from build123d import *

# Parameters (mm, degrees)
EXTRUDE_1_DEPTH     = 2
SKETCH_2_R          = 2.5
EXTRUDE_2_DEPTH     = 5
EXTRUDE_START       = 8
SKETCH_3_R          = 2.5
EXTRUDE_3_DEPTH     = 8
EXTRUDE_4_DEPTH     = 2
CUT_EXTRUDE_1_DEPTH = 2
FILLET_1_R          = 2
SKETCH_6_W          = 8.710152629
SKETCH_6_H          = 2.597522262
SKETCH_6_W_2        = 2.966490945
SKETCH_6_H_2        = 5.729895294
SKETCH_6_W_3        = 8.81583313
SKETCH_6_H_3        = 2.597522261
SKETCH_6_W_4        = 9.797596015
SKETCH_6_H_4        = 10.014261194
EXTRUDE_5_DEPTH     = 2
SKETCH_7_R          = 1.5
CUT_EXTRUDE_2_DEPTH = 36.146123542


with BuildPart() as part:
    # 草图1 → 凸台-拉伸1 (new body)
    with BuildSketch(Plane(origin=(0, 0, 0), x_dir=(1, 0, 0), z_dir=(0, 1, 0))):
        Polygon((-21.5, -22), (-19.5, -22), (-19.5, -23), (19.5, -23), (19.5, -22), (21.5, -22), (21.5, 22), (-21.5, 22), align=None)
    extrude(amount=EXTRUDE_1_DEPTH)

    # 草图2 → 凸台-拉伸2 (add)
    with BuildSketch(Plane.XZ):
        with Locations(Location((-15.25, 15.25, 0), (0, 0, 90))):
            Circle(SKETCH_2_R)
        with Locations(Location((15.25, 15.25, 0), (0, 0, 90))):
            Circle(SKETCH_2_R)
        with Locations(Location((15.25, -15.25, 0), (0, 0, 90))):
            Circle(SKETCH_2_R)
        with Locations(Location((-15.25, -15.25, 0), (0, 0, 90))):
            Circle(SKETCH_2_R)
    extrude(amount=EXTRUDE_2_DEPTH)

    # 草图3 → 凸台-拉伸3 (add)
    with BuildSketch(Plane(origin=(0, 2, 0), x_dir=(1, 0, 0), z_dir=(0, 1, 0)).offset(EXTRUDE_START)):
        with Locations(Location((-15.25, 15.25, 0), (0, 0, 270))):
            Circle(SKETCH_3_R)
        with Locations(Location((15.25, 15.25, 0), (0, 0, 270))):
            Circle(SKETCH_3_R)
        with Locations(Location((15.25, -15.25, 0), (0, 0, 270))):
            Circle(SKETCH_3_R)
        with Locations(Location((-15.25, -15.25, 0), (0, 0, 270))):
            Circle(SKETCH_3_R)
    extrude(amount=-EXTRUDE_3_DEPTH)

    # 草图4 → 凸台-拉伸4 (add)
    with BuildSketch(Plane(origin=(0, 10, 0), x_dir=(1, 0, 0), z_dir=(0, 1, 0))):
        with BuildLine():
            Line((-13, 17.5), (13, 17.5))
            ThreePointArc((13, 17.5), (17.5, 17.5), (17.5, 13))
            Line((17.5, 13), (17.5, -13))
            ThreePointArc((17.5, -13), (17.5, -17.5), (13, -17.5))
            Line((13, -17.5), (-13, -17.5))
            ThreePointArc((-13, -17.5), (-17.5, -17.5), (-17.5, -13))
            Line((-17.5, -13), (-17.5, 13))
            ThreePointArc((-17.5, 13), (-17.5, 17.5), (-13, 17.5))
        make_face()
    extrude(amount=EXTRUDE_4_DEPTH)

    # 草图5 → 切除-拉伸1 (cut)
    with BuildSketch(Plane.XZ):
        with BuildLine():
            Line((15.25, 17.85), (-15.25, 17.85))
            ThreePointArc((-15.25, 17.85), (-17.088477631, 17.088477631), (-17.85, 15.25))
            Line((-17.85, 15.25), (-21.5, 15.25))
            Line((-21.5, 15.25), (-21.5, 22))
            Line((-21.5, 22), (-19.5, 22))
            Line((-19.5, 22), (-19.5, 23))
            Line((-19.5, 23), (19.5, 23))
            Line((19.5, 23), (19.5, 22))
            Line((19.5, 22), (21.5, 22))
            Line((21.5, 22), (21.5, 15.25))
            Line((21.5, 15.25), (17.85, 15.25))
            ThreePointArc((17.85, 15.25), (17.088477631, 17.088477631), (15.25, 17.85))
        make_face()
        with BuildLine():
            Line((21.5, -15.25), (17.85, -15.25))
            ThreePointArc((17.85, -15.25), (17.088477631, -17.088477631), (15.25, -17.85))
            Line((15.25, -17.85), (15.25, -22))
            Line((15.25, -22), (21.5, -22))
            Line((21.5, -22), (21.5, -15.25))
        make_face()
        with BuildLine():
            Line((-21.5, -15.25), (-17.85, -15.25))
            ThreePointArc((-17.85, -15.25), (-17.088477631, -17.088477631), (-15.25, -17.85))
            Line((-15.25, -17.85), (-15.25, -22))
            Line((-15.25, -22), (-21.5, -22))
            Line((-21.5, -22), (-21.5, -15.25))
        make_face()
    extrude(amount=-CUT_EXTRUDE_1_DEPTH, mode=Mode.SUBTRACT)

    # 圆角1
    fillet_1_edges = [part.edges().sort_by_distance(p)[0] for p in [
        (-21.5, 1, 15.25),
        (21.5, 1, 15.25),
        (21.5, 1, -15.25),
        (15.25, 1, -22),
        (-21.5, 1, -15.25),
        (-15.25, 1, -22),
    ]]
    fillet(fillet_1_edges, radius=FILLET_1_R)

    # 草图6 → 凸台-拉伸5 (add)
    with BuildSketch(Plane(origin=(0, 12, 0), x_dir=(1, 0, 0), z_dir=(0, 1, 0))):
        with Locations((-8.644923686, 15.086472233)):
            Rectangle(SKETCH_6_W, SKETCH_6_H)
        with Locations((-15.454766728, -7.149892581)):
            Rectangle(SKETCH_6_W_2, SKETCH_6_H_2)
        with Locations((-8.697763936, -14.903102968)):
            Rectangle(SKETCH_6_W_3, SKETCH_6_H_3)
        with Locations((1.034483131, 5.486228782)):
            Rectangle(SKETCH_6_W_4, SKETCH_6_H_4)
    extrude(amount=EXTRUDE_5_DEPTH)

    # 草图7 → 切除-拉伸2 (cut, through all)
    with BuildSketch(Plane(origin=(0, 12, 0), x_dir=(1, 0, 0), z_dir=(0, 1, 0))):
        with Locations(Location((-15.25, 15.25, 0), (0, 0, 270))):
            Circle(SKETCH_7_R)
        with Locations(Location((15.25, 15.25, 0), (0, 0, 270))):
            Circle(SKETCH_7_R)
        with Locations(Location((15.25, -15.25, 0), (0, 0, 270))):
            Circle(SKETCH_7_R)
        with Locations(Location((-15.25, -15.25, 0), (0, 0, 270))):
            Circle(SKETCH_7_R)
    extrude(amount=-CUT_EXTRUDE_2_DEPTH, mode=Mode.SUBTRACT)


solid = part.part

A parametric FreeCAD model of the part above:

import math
import FreeCAD as App
import Part
import Sketcher

V = App.Vector


def edges_at(feature, points):
    """Names of the edges that pass closest to the given points."""
    edges = feature.Shape.Edges
    near = lambda p: min(range(len(edges)), key=lambda i: edges[i].distToShape(Part.Vertex(*p))[0])
    return sorted({f"Edge{near(p) + 1}" for p in points})


def add_polygon(sketch, points):
    """Adds a closed chain of lines whose ends are joined by coincident constraints."""
    first, n = sketch.GeometryCount, len(points)
    for a, b in zip(points, points[1:] + points[:1]):
        sketch.addGeometry(Part.LineSegment(App.Vector(*a, 0), App.Vector(*b, 0)), False)
    for i in range(n):
        sketch.addConstraint(Sketcher.Constraint("Coincident", first + i, 2, first + (i + 1) % n, 1))

doc = App.newDocument("Part")
body = doc.addObject("PartDesign::Body", "Body")

# Sketch on XZ plane
sketch1 = body.newObject("Sketcher::SketchObject", "Sketch")
sketch1.AttachmentSupport = (doc.getObject("XZ_Plane"), [""])
sketch1.MapMode = "FlatFace"
add_polygon(sketch1, [(-21.5, 22), (-19.5, 22), (-19.5, 23), (19.5, 23), (19.5, 22), (21.5, 22), (21.5, -22), (-21.5, -22)])  # lines 0-7
sketch1.addConstraint([
    Sketcher.Constraint("Horizontal", 0),
    Sketcher.Constraint("Vertical", 1),
    Sketcher.Constraint("Horizontal", 2),
    Sketcher.Constraint("Vertical", 3),
    Sketcher.Constraint("Horizontal", 4),
    Sketcher.Constraint("Vertical", 5),
    Sketcher.Constraint("Horizontal", 6),
    Sketcher.Constraint("Vertical", 7),
    Sketcher.Constraint("Symmetric", 4, 2, 6, 2, -1, 1),
    Sketcher.Constraint("Symmetric", 0, 2, 3, 2, -2),
    Sketcher.Constraint("DistanceX", 0, 1, 0, 2, 2.0),
    Sketcher.Constraint("DistanceX", 2, 1, 2, 2, 39.0),
    Sketcher.Constraint("DistanceY", 1, 1, 1, 2, 1.0),
    Sketcher.Constraint("DistanceY", 5, 2, 5, 1, 44.0),
])
pad1 = body.newObject("PartDesign::Pad", "Pad")
pad1.Profile = sketch1
pad1.Length = 2
pad1.Reversed = True

# Sketch on XZ plane
sketch2 = body.newObject("Sketcher::SketchObject", "Sketch001")
sketch2.AttachmentSupport = (doc.getObject("XZ_Plane"), [""])
sketch2.MapMode = "FlatFace"
sketch2.addGeometry([
    Part.Circle(V(-15.25, 15.25, 0), V(0, 0, 1), 2.5),
    Part.Circle(V(15.25, 15.25, 0), V(0, 0, 1), 2.5),
    Part.Circle(V(15.25, -15.25, 0), V(0, 0, 1), 2.5),
    Part.Circle(V(-15.25, -15.25, 0), V(0, 0, 1), 2.5),
], False)
sketch2.addConstraint([
    Sketcher.Constraint("Equal", 0, 1),
    Sketcher.Constraint("Equal", 1, 2),
    Sketcher.Constraint("Equal", 2, 3),
    Sketcher.Constraint("Symmetric", 0, 3, 2, 3, -1, 1),
    Sketcher.Constraint("Symmetric", 1, 3, 3, 3, -1, 1),
    Sketcher.Constraint("Symmetric", 0, 3, 1, 3, -2),
    Sketcher.Constraint("Diameter", 0, 5.0),
    Sketcher.Constraint("DistanceX", 0, 3, 1, 3, 30.5),
    Sketcher.Constraint("DistanceY", 2, 3, 1, 3, 30.5),
])
pad2 = body.newObject("PartDesign::Pad", "Pad001")
pad2.Profile = sketch2
pad2.Length = 5

# Sketch on XZ plane
sketch3 = body.newObject("Sketcher::SketchObject", "Sketch002")
sketch3.AttachmentSupport = (doc.getObject("XZ_Plane"), [""])
sketch3.MapMode = "FlatFace"
sketch3.AttachmentOffset = App.Placement(V(0, 0, -10), App.Rotation())
sketch3.addGeometry([
    Part.Circle(V(-15.25, -15.25, 0), V(0, 0, 1), 2.5),
    Part.Circle(V(15.25, -15.25, 0), V(0, 0, 1), 2.5),
    Part.Circle(V(15.25, 15.25, 0), V(0, 0, 1), 2.5),
    Part.Circle(V(-15.25, 15.25, 0), V(0, 0, 1), 2.5),
], False)
sketch3.addConstraint([
    Sketcher.Constraint("Equal", 0, 1),
    Sketcher.Constraint("Equal", 1, 2),
    Sketcher.Constraint("Equal", 2, 3),
    Sketcher.Constraint("Symmetric", 0, 3, 2, 3, -1, 1),
    Sketcher.Constraint("Symmetric", 1, 3, 3, 3, -1, 1),
    Sketcher.Constraint("Symmetric", 0, 3, 1, 3, -2),
    Sketcher.Constraint("Diameter", 0, 5.0),
    Sketcher.Constraint("DistanceX", 0, 3, 1, 3, 30.5),
    Sketcher.Constraint("DistanceY", 1, 3, 2, 3, 30.5),
])
pad3 = body.newObject("PartDesign::Pad", "Pad002")
pad3.Profile = sketch3
pad3.Length = 8

# Sketch on XZ plane
sketch4 = body.newObject("Sketcher::SketchObject", "Sketch003")
sketch4.AttachmentSupport = (doc.getObject("XZ_Plane"), [""])
sketch4.MapMode = "FlatFace"
sketch4.AttachmentOffset = App.Placement(V(0, 0, -10), App.Rotation())
sketch4.addGeometry([
    Part.LineSegment(V(13, -17.5, 0), V(-13, -17.5, 0)),  # 0
    Part.ArcOfCircle(Part.Circle(V(-15.25, -15.25, 0), V(0, 0, 1), 3.181981), math.radians(135), math.radians(315)),  # 1
    Part.LineSegment(V(-17.5, -13, 0), V(-17.5, 13, 0)),  # 2
    Part.ArcOfCircle(Part.Circle(V(-15.25, 15.25, 0), V(0, 0, 1), 3.181981), math.radians(45), math.radians(225)),  # 3
    Part.LineSegment(V(-13, 17.5, 0), V(13, 17.5, 0)),  # 4
    Part.ArcOfCircle(Part.Circle(V(15.25, 15.25, 0), V(0, 0, 1), 3.181981), math.radians(-45), math.radians(135)),  # 5
    Part.LineSegment(V(17.5, 13, 0), V(17.5, -13, 0)),  # 6
    Part.ArcOfCircle(Part.Circle(V(15.25, -15.25, 0), V(0, 0, 1), 3.181981), math.radians(-135), math.radians(45)),  # 7
], False)
sketch4.addConstraint([
    Sketcher.Constraint("Coincident", 0, 2, 1, 2),
    Sketcher.Constraint("Coincident", 1, 1, 2, 1),
    Sketcher.Constraint("Coincident", 2, 2, 3, 2),
    Sketcher.Constraint("Coincident", 3, 1, 4, 1),
    Sketcher.Constraint("Coincident", 4, 2, 5, 2),
    Sketcher.Constraint("Coincident", 5, 1, 6, 1),
    Sketcher.Constraint("Coincident", 6, 2, 7, 2),
    Sketcher.Constraint("Coincident", 7, 1, 0, 1),
    Sketcher.Constraint("Horizontal", 0),
    Sketcher.Constraint("Vertical", 2),
    Sketcher.Constraint("Horizontal", 4),
    Sketcher.Constraint("Vertical", 6),
    Sketcher.Constraint("Equal", 1, 3),
    Sketcher.Constraint("Equal", 3, 5),
    Sketcher.Constraint("Equal", 5, 7),
    Sketcher.Constraint("Symmetric", 1, 3, 5, 3, -1, 1),
    Sketcher.Constraint("Symmetric", 3, 3, 7, 3, -1, 1),
    Sketcher.Constraint("Symmetric", 3, 3, 5, 3, -2),
    Sketcher.Constraint("Horizontal", 2, 2, 5, 1),
    Sketcher.Constraint("Vertical", 0, 2, 3, 1),
    Sketcher.Constraint("Equal", 4, 2),
    Sketcher.Constraint("DistanceX", 0, 2, 0, 1, 26.0),
    Sketcher.Constraint("DistanceY", 0, 2, -1, 1, 17.5),
    Sketcher.Constraint("DistanceX", 1, 1, -1, 1, 17.5),
    Sketcher.Constraint("DistanceY", 1, 3, 3, 3, 30.5),
])
pad4 = body.newObject("PartDesign::Pad", "Pad003")
pad4.Profile = sketch4
pad4.Length = 2
pad4.Reversed = True

# Sketch on XZ plane
sketch5 = body.newObject("Sketcher::SketchObject", "Sketch004")
sketch5.AttachmentSupport = (doc.getObject("XZ_Plane"), [""])
sketch5.MapMode = "FlatFace"
sketch5.addGeometry([
    Part.LineSegment(V(-15.25, 17.85, 0), V(15.25, 17.85, 0)),  # 0
    Part.ArcOfCircle(Part.Circle(V(15.25, 15.25, 0), V(0, 0, 1), 2.6), math.radians(0), math.radians(90)),  # 1
    Part.LineSegment(V(17.85, 15.25, 0), V(21.5, 15.25, 0)),  # 2
    Part.LineSegment(V(21.5, 15.25, 0), V(21.5, 22, 0)),  # 3
    Part.LineSegment(V(21.5, 22, 0), V(19.5, 22, 0)),  # 4
    Part.LineSegment(V(19.5, 22, 0), V(19.5, 23, 0)),  # 5
    Part.LineSegment(V(19.5, 23, 0), V(-19.5, 23, 0)),  # 6
    Part.LineSegment(V(-19.5, 23, 0), V(-19.5, 22, 0)),  # 7
    Part.LineSegment(V(-19.5, 22, 0), V(-21.5, 22, 0)),  # 8
    Part.LineSegment(V(-21.5, 22, 0), V(-21.5, 15.25, 0)),  # 9
    Part.LineSegment(V(-21.5, 15.25, 0), V(-17.85, 15.25, 0)),  # 10
    Part.ArcOfCircle(Part.Circle(V(-15.25, 15.25, 0), V(0, 0, 1), 2.6), math.radians(90), math.radians(180)),  # 11
    Part.LineSegment(V(21.5, -15.25, 0), V(17.85, -15.25, 0)),  # 12
    Part.ArcOfCircle(Part.Circle(V(15.25, -15.25, 0), V(0, 0, 1), 2.6), math.radians(-90), math.radians(0)),  # 13
    Part.LineSegment(V(15.25, -17.85, 0), V(15.25, -22, 0)),  # 14
    Part.LineSegment(V(15.25, -22, 0), V(21.5, -22, 0)),  # 15
    Part.LineSegment(V(21.5, -22, 0), V(21.5, -15.25, 0)),  # 16
    Part.LineSegment(V(-17.85, -15.25, 0), V(-21.5, -15.25, 0)),  # 17
    Part.LineSegment(V(-21.5, -15.25, 0), V(-21.5, -22, 0)),  # 18
    Part.LineSegment(V(-21.5, -22, 0), V(-15.25, -22, 0)),  # 19
    Part.LineSegment(V(-15.25, -22, 0), V(-15.25, -17.85, 0)),  # 20
    Part.ArcOfCircle(Part.Circle(V(-15.25, -15.25, 0), V(0, 0, 1), 2.6), math.radians(180), math.radians(270)),  # 21
], False)
sketch5.addConstraint([
    Sketcher.Constraint("Tangent", 0, 2, 1, 2),
    Sketcher.Constraint("Coincident", 1, 1, 2, 1),
    Sketcher.Constraint("Coincident", 2, 2, 3, 1),
    Sketcher.Constraint("Coincident", 3, 2, 4, 1),
    Sketcher.Constraint("Coincident", 4, 2, 5, 1),
    Sketcher.Constraint("Coincident", 5, 2, 6, 1),
    Sketcher.Constraint("Coincident", 6, 2, 7, 1),
    Sketcher.Constraint("Coincident", 7, 2, 8, 1),
    Sketcher.Constraint("Coincident", 8, 2, 9, 1),
    Sketcher.Constraint("Coincident", 9, 2, 10, 1),
    Sketcher.Constraint("Coincident", 10, 2, 11, 2),
    Sketcher.Constraint("Tangent", 11, 1, 0, 1),
    Sketcher.Constraint("Coincident", 12, 2, 13, 2),
    Sketcher.Constraint("Coincident", 13, 1, 14, 1),
    Sketcher.Constraint("Coincident", 14, 2, 15, 1),
    Sketcher.Constraint("Coincident", 15, 2, 16, 1),
    Sketcher.Constraint("Coincident", 16, 2, 12, 1),
    Sketcher.Constraint("Coincident", 17, 2, 18, 1),
    Sketcher.Constraint("Coincident", 18, 2, 19, 1),
    Sketcher.Constraint("Coincident", 19, 2, 20, 1),
    Sketcher.Constraint("Coincident", 20, 2, 21, 2),
    Sketcher.Constraint("Coincident", 21, 1, 17, 1),
    Sketcher.Constraint("Horizontal", 0),
    Sketcher.Constraint("Horizontal", 2),
    Sketcher.Constraint("Vertical", 3),
    Sketcher.Constraint("Horizontal", 4),
    Sketcher.Constraint("Vertical", 5),
    Sketcher.Constraint("Horizontal", 6),
    Sketcher.Constraint("Vertical", 7),
    Sketcher.Constraint("Horizontal", 8),
    Sketcher.Constraint("Vertical", 9),
    Sketcher.Constraint("Horizontal", 10),
    Sketcher.Constraint("Horizontal", 12),
    Sketcher.Constraint("Vertical", 14),
    Sketcher.Constraint("Horizontal", 15),
    Sketcher.Constraint("Vertical", 16),
    Sketcher.Constraint("Horizontal", 17),
    Sketcher.Constraint("Vertical", 18),
    Sketcher.Constraint("Horizontal", 19),
    Sketcher.Constraint("Vertical", 20),
    Sketcher.Constraint("Equal", 1, 11),
    Sketcher.Constraint("Equal", 11, 13),
    Sketcher.Constraint("Equal", 13, 21),
    Sketcher.Constraint("Symmetric", 11, 3, 13, 3, -1, 1),
    Sketcher.Constraint("Symmetric", 1, 3, 21, 3, -1, 1),
    Sketcher.Constraint("Symmetric", 8, 2, 15, 2, -1, 1),
    Sketcher.Constraint("Symmetric", 2, 2, 17, 2, -1, 1),
    Sketcher.Constraint("Symmetric", 4, 2, 7, 2, -2),
    Sketcher.Constraint("Symmetric", 2, 2, 9, 2, -2),
    Sketcher.Constraint("Symmetric", 14, 2, 19, 2, -2),
    Sketcher.Constraint("Symmetric", 12, 2, 21, 1, -2),
    Sketcher.Constraint("Horizontal", 11, 3, 1, 1),
    Sketcher.Constraint("Vertical", 0, 2, 13, 1),
    Sketcher.Constraint("Radius", 1, 2.6),
    Sketcher.Constraint("DistanceX", 4, 2, 4, 1, 2.0),
    Sketcher.Constraint("DistanceX", 6, 2, 6, 1, 39.0),
    Sketcher.Constraint("DistanceY", 5, 1, 5, 2, 1.0),
    Sketcher.Constraint("DistanceX", 0, 1, 0, 2, 30.5),
    Sketcher.Constraint("DistanceY", -1, 1, 3, 2, 22.0),
    Sketcher.Constraint("DistanceY", 3, 1, 3, 2, 6.75),
])
pocket1 = body.newObject("PartDesign::Pocket", "Pocket")
pocket1.Profile = sketch5
pocket1.Length = 2
doc.recompute()

fillet = body.newObject("PartDesign::Fillet", "Fillet")
fillet.Base = (pocket1, edges_at(pocket1, [
    (-21.5, 1, 15.25),
    (21.5, 1, 15.25),
    (21.5, 1, -15.25),
    (15.25, 1, -22),
    (-21.5, 1, -15.25),
    (-15.25, 1, -22),
]))
fillet.Radius = 2

# Sketch on XZ plane
sketch6 = body.newObject("Sketcher::SketchObject", "Sketch005")
sketch6.AttachmentSupport = (doc.getObject("XZ_Plane"), [""])
sketch6.MapMode = "FlatFace"
sketch6.AttachmentOffset = App.Placement(V(0, 0, -12), App.Rotation())
add_polygon(sketch6, [(-13, -16.385233), (-13, -13.787711), (-4.289847, -13.787711), (-4.289847, -16.385233)])  # lines 0-3
add_polygon(sketch6, [(-16.938012, 4.284945), (-16.938012, 10.01484), (-13.971521, 10.01484), (-13.971521, 4.284945)])  # lines 4-7
add_polygon(sketch6, [(-13.105681, 13.604342), (-13.105681, 16.201864), (-4.289847, 16.201864), (-4.289847, 13.604342)])  # lines 8-11
add_polygon(sketch6, [(-3.864315, -10.493359), (-3.864315, -0.479098), (5.933281, -0.479098), (5.933281, -10.493359)])  # lines 12-15
sketch6.addConstraint([
    Sketcher.Constraint("Vertical", 0),
    Sketcher.Constraint("Horizontal", 1),
    Sketcher.Constraint("Vertical", 2),
    Sketcher.Constraint("Horizontal", 3),
    Sketcher.Constraint("Vertical", 4),
    Sketcher.Constraint("Horizontal", 5),
    Sketcher.Constraint("Vertical", 6),
    Sketcher.Constraint("Horizontal", 7),
    Sketcher.Constraint("Vertical", 8),
    Sketcher.Constraint("Horizontal", 9),
    Sketcher.Constraint("Vertical", 10),
    Sketcher.Constraint("Horizontal", 11),
    Sketcher.Constraint("Vertical", 12),
    Sketcher.Constraint("Horizontal", 13),
    Sketcher.Constraint("Vertical", 14),
    Sketcher.Constraint("Horizontal", 15),
    Sketcher.Constraint("Vertical", 2, 2, 9, 2),
    Sketcher.Constraint("Equal", 2, 8),
    Sketcher.Constraint("DistanceX", 0, 2, -1, 1, 13.0),
    Sketcher.Constraint("DistanceX", 5, 1, 5, 2, 2.966491),
    Sketcher.Constraint("DistanceY", 12, 1, 12, 2, 10.014261),
    Sketcher.Constraint("DistanceY", 12, 2, -1, 1, 0.479098),
    Sketcher.Constraint("DistanceY", 5, 2, 10, 2, 3.589502),
    Sketcher.Constraint("DistanceX", 1, 1, 1, 2, 8.710153),
    Sketcher.Constraint("DistanceX", 9, 1, 9, 2, 8.815833),
    Sketcher.Constraint("DistanceX", 13, 1, 13, 2, 9.797596),
    Sketcher.Constraint("DistanceY", 0, 1, 0, 2, 2.597522),
    Sketcher.Constraint("DistanceY", 4, 1, 4, 2, 5.729895),
    Sketcher.Constraint("DistanceY", 0, 2, -1, 1, 13.787711),
    Sketcher.Constraint("DistanceY", -1, 1, 4, 2, 10.01484),
    Sketcher.Constraint("DistanceX", 5, 2, -1, 1, 13.971521),
    Sketcher.Constraint("DistanceX", -1, 1, 13, 2, 5.933281),
])
pad5 = body.newObject("PartDesign::Pad", "Pad004")
pad5.Profile = sketch6
pad5.Length = 2
pad5.Reversed = True

# Sketch on XZ plane
sketch7 = body.newObject("Sketcher::SketchObject", "Sketch006")
sketch7.AttachmentSupport = (doc.getObject("XZ_Plane"), [""])
sketch7.MapMode = "FlatFace"
sketch7.AttachmentOffset = App.Placement(V(0, 0, -12), App.Rotation())
sketch7.addGeometry([
    Part.Circle(V(-15.25, -15.25, 0), V(0, 0, 1), 1.5),
    Part.Circle(V(15.25, -15.25, 0), V(0, 0, 1), 1.5),
    Part.Circle(V(15.25, 15.25, 0), V(0, 0, 1), 1.5),
    Part.Circle(V(-15.25, 15.25, 0), V(0, 0, 1), 1.5),
], False)
sketch7.addConstraint([
    Sketcher.Constraint("Equal", 0, 1),
    Sketcher.Constraint("Equal", 1, 2),
    Sketcher.Constraint("Equal", 2, 3),
    Sketcher.Constraint("Symmetric", 0, 3, 2, 3, -1, 1),
    Sketcher.Constraint("Symmetric", 1, 3, 3, 3, -1, 1),
    Sketcher.Constraint("Symmetric", 0, 3, 1, 3, -2),
    Sketcher.Constraint("Diameter", 0, 3.0),
    Sketcher.Constraint("DistanceX", 0, 3, 1, 3, 30.5),
    Sketcher.Constraint("DistanceY", 1, 3, 2, 3, 30.5),
])
pocket2 = body.newObject("PartDesign::Pocket", "Pocket001")
pocket2.Profile = sketch7
pocket2.Type = "ThroughAll"
pocket2.Reversed = True

doc.recompute()
